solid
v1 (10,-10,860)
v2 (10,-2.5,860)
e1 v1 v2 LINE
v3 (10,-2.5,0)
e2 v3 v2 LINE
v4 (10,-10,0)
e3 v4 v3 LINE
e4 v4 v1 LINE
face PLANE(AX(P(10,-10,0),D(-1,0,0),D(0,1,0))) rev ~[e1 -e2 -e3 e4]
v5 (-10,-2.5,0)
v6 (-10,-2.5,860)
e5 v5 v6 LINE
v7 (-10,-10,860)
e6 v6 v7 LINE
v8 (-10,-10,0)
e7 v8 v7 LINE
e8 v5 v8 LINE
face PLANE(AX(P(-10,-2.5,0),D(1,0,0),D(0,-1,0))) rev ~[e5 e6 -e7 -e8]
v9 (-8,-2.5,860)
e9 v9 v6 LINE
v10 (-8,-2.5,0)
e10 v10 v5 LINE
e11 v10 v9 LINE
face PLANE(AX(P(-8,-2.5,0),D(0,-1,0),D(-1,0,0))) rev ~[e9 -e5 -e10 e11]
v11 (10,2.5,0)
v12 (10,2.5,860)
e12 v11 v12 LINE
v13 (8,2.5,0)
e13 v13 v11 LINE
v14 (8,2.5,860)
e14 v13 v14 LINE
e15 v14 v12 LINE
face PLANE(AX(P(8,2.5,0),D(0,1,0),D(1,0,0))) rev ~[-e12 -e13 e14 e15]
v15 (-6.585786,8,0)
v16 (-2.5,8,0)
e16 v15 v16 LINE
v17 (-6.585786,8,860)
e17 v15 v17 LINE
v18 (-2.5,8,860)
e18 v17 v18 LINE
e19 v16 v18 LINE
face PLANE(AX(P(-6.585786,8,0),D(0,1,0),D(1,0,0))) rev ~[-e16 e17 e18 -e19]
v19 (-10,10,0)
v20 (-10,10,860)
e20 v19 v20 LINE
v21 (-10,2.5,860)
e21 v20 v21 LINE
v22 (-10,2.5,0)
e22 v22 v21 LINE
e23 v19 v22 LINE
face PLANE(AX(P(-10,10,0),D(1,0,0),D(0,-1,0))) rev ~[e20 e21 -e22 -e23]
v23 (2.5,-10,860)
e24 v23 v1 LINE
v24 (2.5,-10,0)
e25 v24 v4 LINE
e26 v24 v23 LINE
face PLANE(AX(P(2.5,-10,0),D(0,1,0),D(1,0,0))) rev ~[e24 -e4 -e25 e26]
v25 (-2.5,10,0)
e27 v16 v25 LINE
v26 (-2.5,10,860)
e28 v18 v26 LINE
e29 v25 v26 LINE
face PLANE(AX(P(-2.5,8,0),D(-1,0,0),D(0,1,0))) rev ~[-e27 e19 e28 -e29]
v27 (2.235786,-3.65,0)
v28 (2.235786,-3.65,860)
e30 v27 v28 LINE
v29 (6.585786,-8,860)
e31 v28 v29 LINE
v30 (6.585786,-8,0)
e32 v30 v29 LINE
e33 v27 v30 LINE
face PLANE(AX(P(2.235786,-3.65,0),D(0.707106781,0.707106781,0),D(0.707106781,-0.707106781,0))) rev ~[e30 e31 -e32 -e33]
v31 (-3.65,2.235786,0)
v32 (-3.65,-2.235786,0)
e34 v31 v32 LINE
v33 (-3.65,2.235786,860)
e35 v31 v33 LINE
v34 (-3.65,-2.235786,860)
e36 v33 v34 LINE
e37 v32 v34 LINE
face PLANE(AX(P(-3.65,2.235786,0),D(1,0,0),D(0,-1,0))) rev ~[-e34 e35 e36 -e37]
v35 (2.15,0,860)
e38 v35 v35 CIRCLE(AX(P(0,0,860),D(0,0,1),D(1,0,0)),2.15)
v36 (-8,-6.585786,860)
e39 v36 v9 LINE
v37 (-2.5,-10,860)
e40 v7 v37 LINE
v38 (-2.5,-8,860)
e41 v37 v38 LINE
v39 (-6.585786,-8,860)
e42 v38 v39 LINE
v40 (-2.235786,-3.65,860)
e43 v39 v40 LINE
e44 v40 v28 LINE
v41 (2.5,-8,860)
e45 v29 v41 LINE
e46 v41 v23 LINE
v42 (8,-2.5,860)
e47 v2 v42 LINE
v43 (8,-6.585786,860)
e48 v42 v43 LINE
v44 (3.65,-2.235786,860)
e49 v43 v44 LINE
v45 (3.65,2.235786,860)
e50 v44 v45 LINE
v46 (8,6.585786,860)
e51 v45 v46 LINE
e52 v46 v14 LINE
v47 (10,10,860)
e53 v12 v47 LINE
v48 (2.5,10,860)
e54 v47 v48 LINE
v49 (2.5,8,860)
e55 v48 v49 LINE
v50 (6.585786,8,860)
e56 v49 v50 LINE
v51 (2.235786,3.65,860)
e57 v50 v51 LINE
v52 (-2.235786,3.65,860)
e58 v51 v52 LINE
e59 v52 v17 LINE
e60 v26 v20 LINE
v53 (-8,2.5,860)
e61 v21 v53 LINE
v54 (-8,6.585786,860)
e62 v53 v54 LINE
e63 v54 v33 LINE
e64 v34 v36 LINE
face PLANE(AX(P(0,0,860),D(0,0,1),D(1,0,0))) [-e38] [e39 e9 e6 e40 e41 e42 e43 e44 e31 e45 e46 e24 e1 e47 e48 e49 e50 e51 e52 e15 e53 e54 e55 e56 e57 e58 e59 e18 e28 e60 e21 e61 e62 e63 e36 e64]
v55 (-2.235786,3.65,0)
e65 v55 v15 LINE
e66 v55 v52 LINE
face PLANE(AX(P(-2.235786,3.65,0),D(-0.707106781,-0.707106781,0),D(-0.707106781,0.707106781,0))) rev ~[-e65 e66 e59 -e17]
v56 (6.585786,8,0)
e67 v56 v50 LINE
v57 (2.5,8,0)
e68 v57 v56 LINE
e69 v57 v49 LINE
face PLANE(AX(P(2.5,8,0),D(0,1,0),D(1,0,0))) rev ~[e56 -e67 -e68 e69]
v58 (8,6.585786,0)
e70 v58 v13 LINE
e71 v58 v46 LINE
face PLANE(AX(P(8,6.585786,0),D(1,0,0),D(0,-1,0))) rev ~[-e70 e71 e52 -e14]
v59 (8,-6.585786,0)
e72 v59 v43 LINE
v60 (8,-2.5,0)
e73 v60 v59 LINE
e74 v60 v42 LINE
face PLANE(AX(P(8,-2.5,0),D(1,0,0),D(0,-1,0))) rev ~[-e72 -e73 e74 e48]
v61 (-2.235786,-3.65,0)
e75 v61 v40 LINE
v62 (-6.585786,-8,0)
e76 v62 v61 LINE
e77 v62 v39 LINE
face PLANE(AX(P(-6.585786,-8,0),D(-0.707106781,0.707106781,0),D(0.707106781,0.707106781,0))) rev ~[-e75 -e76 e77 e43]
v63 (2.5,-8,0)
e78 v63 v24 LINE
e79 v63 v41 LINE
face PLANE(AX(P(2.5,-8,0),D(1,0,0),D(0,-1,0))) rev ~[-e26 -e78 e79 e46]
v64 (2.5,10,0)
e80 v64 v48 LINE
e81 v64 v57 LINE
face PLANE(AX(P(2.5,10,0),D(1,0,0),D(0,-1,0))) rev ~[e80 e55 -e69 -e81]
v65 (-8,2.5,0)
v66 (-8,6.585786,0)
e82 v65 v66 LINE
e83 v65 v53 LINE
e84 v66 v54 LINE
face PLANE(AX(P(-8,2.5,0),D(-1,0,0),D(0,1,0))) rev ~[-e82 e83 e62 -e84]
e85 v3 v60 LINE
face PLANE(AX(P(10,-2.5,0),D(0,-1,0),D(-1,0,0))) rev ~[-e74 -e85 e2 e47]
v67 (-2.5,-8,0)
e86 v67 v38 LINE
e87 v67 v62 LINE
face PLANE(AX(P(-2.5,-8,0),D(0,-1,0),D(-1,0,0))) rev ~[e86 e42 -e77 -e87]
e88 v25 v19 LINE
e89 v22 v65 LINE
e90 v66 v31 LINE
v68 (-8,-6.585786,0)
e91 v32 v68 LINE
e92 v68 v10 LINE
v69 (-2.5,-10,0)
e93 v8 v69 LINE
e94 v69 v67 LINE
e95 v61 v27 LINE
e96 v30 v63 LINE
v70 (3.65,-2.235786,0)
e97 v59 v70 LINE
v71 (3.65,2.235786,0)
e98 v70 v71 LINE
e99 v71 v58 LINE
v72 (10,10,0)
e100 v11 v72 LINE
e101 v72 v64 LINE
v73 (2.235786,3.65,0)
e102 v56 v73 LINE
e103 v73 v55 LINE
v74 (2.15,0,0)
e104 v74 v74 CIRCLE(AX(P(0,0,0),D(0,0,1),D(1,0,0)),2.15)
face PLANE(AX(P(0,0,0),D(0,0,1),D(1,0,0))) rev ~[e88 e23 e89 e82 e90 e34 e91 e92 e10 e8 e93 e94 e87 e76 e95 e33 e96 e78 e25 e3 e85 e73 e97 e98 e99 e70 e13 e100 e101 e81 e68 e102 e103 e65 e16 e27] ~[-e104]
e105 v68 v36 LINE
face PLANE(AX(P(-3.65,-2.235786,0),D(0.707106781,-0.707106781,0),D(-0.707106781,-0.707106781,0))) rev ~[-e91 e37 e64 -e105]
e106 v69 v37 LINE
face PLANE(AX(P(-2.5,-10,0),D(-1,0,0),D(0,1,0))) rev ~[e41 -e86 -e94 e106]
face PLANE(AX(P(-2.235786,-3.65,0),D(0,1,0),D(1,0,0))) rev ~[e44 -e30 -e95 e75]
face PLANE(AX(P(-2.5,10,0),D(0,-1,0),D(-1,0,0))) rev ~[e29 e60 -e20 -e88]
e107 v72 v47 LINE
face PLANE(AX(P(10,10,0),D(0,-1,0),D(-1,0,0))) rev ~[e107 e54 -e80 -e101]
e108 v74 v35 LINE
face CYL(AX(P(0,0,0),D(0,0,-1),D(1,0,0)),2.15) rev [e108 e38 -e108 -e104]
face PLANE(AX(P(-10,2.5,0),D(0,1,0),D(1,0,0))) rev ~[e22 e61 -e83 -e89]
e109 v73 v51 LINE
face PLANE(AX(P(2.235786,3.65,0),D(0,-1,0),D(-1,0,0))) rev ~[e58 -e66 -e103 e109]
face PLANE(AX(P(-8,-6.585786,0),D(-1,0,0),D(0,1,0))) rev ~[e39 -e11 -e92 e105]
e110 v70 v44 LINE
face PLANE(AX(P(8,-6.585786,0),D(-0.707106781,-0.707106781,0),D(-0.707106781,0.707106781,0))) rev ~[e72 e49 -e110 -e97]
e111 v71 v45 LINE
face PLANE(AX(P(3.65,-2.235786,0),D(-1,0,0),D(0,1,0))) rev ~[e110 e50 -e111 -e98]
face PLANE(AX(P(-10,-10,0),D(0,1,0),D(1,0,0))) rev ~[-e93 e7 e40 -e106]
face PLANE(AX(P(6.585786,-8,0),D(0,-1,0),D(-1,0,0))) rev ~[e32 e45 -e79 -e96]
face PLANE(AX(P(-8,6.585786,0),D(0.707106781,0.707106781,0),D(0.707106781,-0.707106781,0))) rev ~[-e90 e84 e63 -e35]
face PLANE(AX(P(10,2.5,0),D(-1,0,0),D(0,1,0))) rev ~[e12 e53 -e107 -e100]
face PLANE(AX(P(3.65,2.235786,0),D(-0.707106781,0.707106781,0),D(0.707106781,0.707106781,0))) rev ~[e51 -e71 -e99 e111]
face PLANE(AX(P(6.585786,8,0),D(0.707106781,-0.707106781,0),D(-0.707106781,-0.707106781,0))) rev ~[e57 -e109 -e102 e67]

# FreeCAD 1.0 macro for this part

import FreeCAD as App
import Part
import Sketcher
from FreeCAD import Vector
Q = App.Units.Quantity

doc = App.newDocument("Part")
params = doc.addObject("Spreadsheet::Sheet", "Params")
for row, (alias, value) in enumerate([
    ("sketch1_diameter", "4.3 mm"),
    ("sketch1_width", "2 mm"),
    ("sketch1_width2", "7.5 mm"),
    ("pad1_length", "860 mm"),
], start=1):
    params.set(f"A{row}", alias)
    params.set(f"B{row}", "=" + value)
    params.setAlias(f"B{row}", alias)

body = doc.addObject("PartDesign::Body", "Body")

# Sketch on XY plane
sketch1 = doc.addObject("Sketcher::SketchObject", "Sketch")
body.addObject(sketch1)
sketch1.AttachmentSupport = (doc.XY_Plane, [""])
sketch1.MapMode = "FlatFace"
sketch1.addGeometry([
    Part.LineSegment(Vector(-2.5, 10, 0), Vector(-10, 10, 0)),  # 0
    Part.LineSegment(Vector(-10, 10, 0), Vector(-10, 2.5, 0)),  # 1
    Part.LineSegment(Vector(-10, 2.5, 0), Vector(-8, 2.5, 0)),  # 2
    Part.LineSegment(Vector(-8, 2.5, 0), Vector(-8, 6.6, 0)),  # 3
    Part.LineSegment(Vector(-8, 6.6, 0), Vector(-3.6, 2.2, 0)),  # 4
    Part.LineSegment(Vector(-3.6, 2.2, 0), Vector(-3.6, -2.2, 0)),  # 5
    Part.LineSegment(Vector(-3.6, -2.2, 0), Vector(-8, -6.6, 0)),  # 6
    Part.LineSegment(Vector(-8, -6.6, 0), Vector(-8, -2.5, 0)),  # 7
    Part.LineSegment(Vector(-8, -2.5, 0), Vector(-10, -2.5, 0)),  # 8
    Part.LineSegment(Vector(-10, -2.5, 0), Vector(-10, -10, 0)),  # 9
    Part.LineSegment(Vector(-10, -10, 0), Vector(-2.5, -10, 0)),  # 10
    Part.LineSegment(Vector(-2.5, -10, 0), Vector(-2.5, -8, 0)),  # 11
    Part.LineSegment(Vector(-2.5, -8, 0), Vector(-6.6, -8, 0)),  # 12
    Part.LineSegment(Vector(-6.6, -8, 0), Vector(-2.2, -3.6, 0)),  # 13
    Part.LineSegment(Vector(-2.2, -3.6, 0), Vector(2.2, -3.6, 0)),  # 14
    Part.LineSegment(Vector(2.2, -3.6, 0), Vector(6.6, -8, 0)),  # 15
    Part.LineSegment(Vector(6.6, -8, 0), Vector(2.5, -8, 0)),  # 16
    Part.LineSegment(Vector(2.5, -8, 0), Vector(2.5, -10, 0)),  # 17
    Part.LineSegment(Vector(2.5, -10, 0), Vector(10, -10, 0)),  # 18
    Part.LineSegment(Vector(10, -10, 0), Vector(10, -2.5, 0)),  # 19
    Part.LineSegment(Vector(10, -2.5, 0), Vector(8, -2.5, 0)),  # 20
    Part.LineSegment(Vector(8, -2.5, 0), Vector(8, -6.6, 0)),  # 21
    Part.LineSegment(Vector(8, -6.6, 0), Vector(3.6, -2.2, 0)),  # 22
    Part.LineSegment(Vector(3.6, -2.2, 0), Vector(3.6, 2.2, 0)),  # 23
    Part.LineSegment(Vector(3.6, 2.2, 0), Vector(8, 6.6, 0)),  # 24
    Part.LineSegment(Vector(8, 6.6, 0), Vector(8, 2.5, 0)),  # 25
    Part.LineSegment(Vector(8, 2.5, 0), Vector(10, 2.5, 0)),  # 26
    Part.LineSegment(Vector(10, 2.5, 0), Vector(10, 10, 0)),  # 27
    Part.LineSegment(Vector(10, 10, 0), Vector(2.5, 10, 0)),  # 28
    Part.LineSegment(Vector(2.5, 10, 0), Vector(2.5, 8, 0)),  # 29
    Part.LineSegment(Vector(2.5, 8, 0), Vector(6.6, 8, 0)),  # 30
    Part.LineSegment(Vector(6.6, 8, 0), Vector(2.2, 3.6, 0)),  # 31
    Part.LineSegment(Vector(2.2, 3.6, 0), Vector(-2.2, 3.6, 0)),  # 32
    Part.LineSegment(Vector(-2.2, 3.6, 0), Vector(-6.6, 8, 0)),  # 33
    Part.LineSegment(Vector(-6.6, 8, 0), Vector(-2.5, 8, 0)),  # 34
    Part.LineSegment(Vector(-2.5, 8, 0), Vector(-2.5, 10, 0)),  # 35
    Part.Circle(Vector(0, 0, 0), Vector(0, 0, 1), 2.1),  # 36
], False)
sketch1.addConstraint([
    Sketcher.Constraint("Coincident", 0, 2, 1, 1),
    Sketcher.Constraint("Coincident", 1, 2, 2, 1),
    Sketcher.Constraint("Coincident", 2, 2, 3, 1),
    Sketcher.Constraint("Coincident", 3, 2, 4, 1),
    Sketcher.Constraint("Coincident", 4, 2, 5, 1),
    Sketcher.Constraint("Coincident", 5, 2, 6, 1),
    Sketcher.Constraint("Coincident", 6, 2, 7, 1),
    Sketcher.Constraint("Coincident", 7, 2, 8, 1),
    Sketcher.Constraint("Coincident", 8, 2, 9, 1),
    Sketcher.Constraint("Coincident", 9, 2, 10, 1),
    Sketcher.Constraint("Coincident", 10, 2, 11, 1),
    Sketcher.Constraint("Coincident", 11, 2, 12, 1),
    Sketcher.Constraint("Coincident", 12, 2, 13, 1),
    Sketcher.Constraint("Coincident", 13, 2, 14, 1),
    Sketcher.Constraint("Coincident", 14, 2, 15, 1),
    Sketcher.Constraint("Coincident", 15, 2, 16, 1),
    Sketcher.Constraint("Coincident", 16, 2, 17, 1),
    Sketcher.Constraint("Coincident", 17, 2, 18, 1),
    Sketcher.Constraint("Coincident", 18, 2, 19, 1),
    Sketcher.Constraint("Coincident", 19, 2, 20, 1),
    Sketcher.Constraint("Coincident", 20, 2, 21, 1),
    Sketcher.Constraint("Coincident", 21, 2, 22, 1),
    Sketcher.Constraint("Coincident", 22, 2, 23, 1),
    Sketcher.Constraint("Coincident", 23, 2, 24, 1),
    Sketcher.Constraint("Coincident", 24, 2, 25, 1),
    Sketcher.Constraint("Coincident", 25, 2, 26, 1),
    Sketcher.Constraint("Coincident", 26, 2, 27, 1),
    Sketcher.Constraint("Coincident", 27, 2, 28, 1),
    Sketcher.Constraint("Coincident", 28, 2, 29, 1),
    Sketcher.Constraint("Coincident", 29, 2, 30, 1),
    Sketcher.Constraint("Coincident", 30, 2, 31, 1),
    Sketcher.Constraint("Coincident", 31, 2, 32, 1),
    Sketcher.Constraint("Coincident", 32, 2, 33, 1),
    Sketcher.Constraint("Coincident", 33, 2, 34, 1),
    Sketcher.Constraint("Coincident", 34, 2, 35, 1),
    Sketcher.Constraint("Coincident", 35, 2, 0, 1),
    Sketcher.Constraint("Horizontal", 0),
    Sketcher.Constraint("Vertical", 1),
    Sketcher.Constraint("Horizontal", 2),
    Sketcher.Constraint("Vertical", 3),
    Sketcher.Constraint("Vertical", 5),
    Sketcher.Constraint("Vertical", 7),
    Sketcher.Constraint("Horizontal", 8),
    Sketcher.Constraint("Vertical", 9),
    Sketcher.Constraint("Horizontal", 10),
    Sketcher.Constraint("Vertical", 11),
    Sketcher.Constraint("Horizontal", 12),
    Sketcher.Constraint("Horizontal", 14),
    Sketcher.Constraint("Horizontal", 16),
    Sketcher.Constraint("Vertical", 17),
    Sketcher.Constraint("Horizontal", 18),
    Sketcher.Constraint("Vertical", 19),
    Sketcher.Constraint("Horizontal", 20),
    Sketcher.Constraint("Vertical", 21),
    Sketcher.Constraint("Vertical", 23),
    Sketcher.Constraint("Vertical", 25),
    Sketcher.Constraint("Horizontal", 26),
    Sketcher.Constraint("Vertical", 27),
    Sketcher.Constraint("Horizontal", 28),
    Sketcher.Constraint("Vertical", 29),
    Sketcher.Constraint("Horizontal", 30),
    Sketcher.Constraint("Horizontal", 32),
    Sketcher.Constraint("Horizontal", 34),
    Sketcher.Constraint("Vertical", 35),
    Sketcher.Constraint("Coincident", 36, 3, -1, 1),
    Sketcher.Constraint("Symmetric", 0, 2, 18, 2, -1, 1),
    Sketcher.Constraint("Symmetric", 2, 2, 20, 2, -1, 1),
    Sketcher.Constraint("Symmetric", 4, 2, 22, 2, -1, 1),
    Sketcher.Constraint("Symmetric", 6, 2, 24, 2, -1, 1),
    Sketcher.Constraint("Symmetric", 8, 2, 26, 2, -1, 1),
    Sketcher.Constraint("Symmetric", 10, 2, 28, 2, -1, 1),
    Sketcher.Constraint("Symmetric", 12, 2, 30, 2, -1, 1),
    Sketcher.Constraint("Symmetric", 13, 2, 31, 2, -1, 1),
    Sketcher.Constraint("Symmetric", 15, 2, 33, 2, -1, 1),
    Sketcher.Constraint("Symmetric", 12, 2, 15, 2, -2),
    Sketcher.Constraint("Symmetric", 10, 2, 17, 2, -2),
    Sketcher.Constraint("Symmetric", 8, 2, 19, 2, -2),
    Sketcher.Constraint("Symmetric", 6, 2, 21, 2, -2),
    Sketcher.Constraint("Perpendicular", 4, 6),
    Sketcher.Constraint("Parallel", 6, 13),
    Sketcher.Constraint("Perpendicular", 13, 15),
    Sketcher.Constraint("Parallel", 15, 22),
    Sketcher.Constraint("Perpendicular", 22, 24),
    Sketcher.Constraint("Perpendicular", 31, 33),
    Sketcher.Constraint("Horizontal", 5, 2, 22, 2),
    Sketcher.Constraint("Vertical", 11, 2, 34, 2),
    Sketcher.Constraint("Equal", 28, 1),
    Sketcher.Constraint("Equal", 34, 3),
    Sketcher.Constraint("Equal", 32, 5),
    Sketcher.Constraint("Equal", 26, 11),
    Sketcher.Constraint("Equal", 6, 13),
    Sketcher.Constraint("Diameter", 36, Q("4.3 mm")),
    Sketcher.Constraint("DistanceX", 2, 1, 2, 2, Q("2 mm")),
    Sketcher.Constraint("DistanceX", 0, 2, 0, 1, Q("7.5 mm")),
    Sketcher.Constraint("DistanceX", 0, 2, -1, 1, Q("10 mm")),
    Sketcher.Constraint("DistanceX", 4, 2, 23, 2, Q("7.3 mm")),
    Sketcher.Constraint("DistanceX", 12, 2, 12, 1, Q("4.085786 mm")),
])
sketch1.setExpression("Constraints[91]", "Params.sketch1_diameter")
sketch1.setExpression("Constraints[92]", "Params.sketch1_width")
sketch1.setExpression("Constraints[93]", "Params.sketch1_width2")
pad1 = doc.addObject("PartDesign::Pad", "Pad")
body.addObject(pad1)
pad1.Profile = sketch1
pad1.setExpression("Length", "Params.pad1_length")

doc.recompute()
